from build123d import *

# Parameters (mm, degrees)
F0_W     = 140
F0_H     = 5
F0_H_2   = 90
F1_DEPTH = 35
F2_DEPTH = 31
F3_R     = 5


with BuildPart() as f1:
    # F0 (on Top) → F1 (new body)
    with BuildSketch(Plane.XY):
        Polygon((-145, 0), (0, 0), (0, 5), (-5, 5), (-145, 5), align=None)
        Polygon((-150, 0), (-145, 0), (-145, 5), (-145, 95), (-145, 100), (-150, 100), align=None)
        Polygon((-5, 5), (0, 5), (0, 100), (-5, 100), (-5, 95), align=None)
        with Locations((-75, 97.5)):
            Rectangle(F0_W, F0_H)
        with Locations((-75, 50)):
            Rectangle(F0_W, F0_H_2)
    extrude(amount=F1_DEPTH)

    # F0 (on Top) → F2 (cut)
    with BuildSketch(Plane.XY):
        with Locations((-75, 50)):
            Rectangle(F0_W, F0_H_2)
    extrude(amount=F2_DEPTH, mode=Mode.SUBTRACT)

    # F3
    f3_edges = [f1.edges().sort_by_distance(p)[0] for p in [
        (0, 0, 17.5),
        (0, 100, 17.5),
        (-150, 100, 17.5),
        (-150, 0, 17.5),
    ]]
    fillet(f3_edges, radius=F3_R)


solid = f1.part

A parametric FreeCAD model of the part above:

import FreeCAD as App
import Part
import Sketcher
Q = App.Units.Quantity


def edges_at(feature, points):
    """Names of the edges that pass closest to the given points."""
    edges = feature.Shape.Edges
    near = lambda p: min(range(len(edges)), key=lambda i: edges[i].distToShape(Part.Vertex(*p))[0])
    return sorted({f"Edge{near(p) + 1}" for p in points})

doc = App.newDocument("Part")
body = doc.addObject("PartDesign::Body", "Body")

# Sketch on XY plane
sketch1 = doc.addObject("Sketcher::SketchObject", "Sketch")
body.addObject(sketch1)
sketch1.AttachmentSupport = (doc.XY_Plane, [""])
sketch1.MapMode = "FlatFace"
sketch1.addGeometry([
    Part.LineSegment(App.Vector(0, 0, 0), App.Vector(0, 100, 0)),
    Part.LineSegment(App.Vector(0, 100, 0), App.Vector(-150, 100, 0)),
    Part.LineSegment(App.Vector(-150, 100, 0), App.Vector(-150, 0, 0)),
    Part.LineSegment(App.Vector(-150, 0, 0), App.Vector(0, 0, 0)),
], False)
sketch1.addConstraint([
    Sketcher.Constraint("Coincident", 0, 2, 1, 1),
    Sketcher.Constraint("Coincident", 1, 2, 2, 1),
    Sketcher.Constraint("Coincident", 2, 2, 3, 1),
    Sketcher.Constraint("Coincident", 3, 2, 0, 1),
    Sketcher.Constraint("Vertical", 0),
    Sketcher.Constraint("Horizontal", 1),
    Sketcher.Constraint("Vertical", 2),
    Sketcher.Constraint("Horizontal", 3),
    Sketcher.Constraint("Coincident", 3, 2, -1, 1),
    Sketcher.Constraint("DistanceX", 1, 2, 1, 1, Q("150 mm")),
    Sketcher.Constraint("DistanceY", 0, 1, 0, 2, Q("100 mm")),
])
pad1 = doc.addObject("PartDesign::Pad", "Pad")
body.addObject(pad1)
pad1.Profile = sketch1
pad1.Length = 35

# Sketch on XY plane
sketch2 = doc.addObject("Sketcher::SketchObject", "Sketch001")
body.addObject(sketch2)
sketch2.AttachmentSupport = (doc.XY_Plane, [""])
sketch2.MapMode = "FlatFace"
sketch2.addGeometry([
    Part.LineSegment(App.Vector(-145, 95, 0), App.Vector(-145, 5, 0)),
    Part.LineSegment(App.Vector(-145, 5, 0), App.Vector(-5, 5, 0)),
    Part.LineSegment(App.Vector(-5, 5, 0), App.Vector(-5, 95, 0)),
    Part.LineSegment(App.Vector(-5, 95, 0), App.Vector(-145, 95, 0)),
], False)
sketch2.addConstraint([
    Sketcher.Constraint("Coincident", 0, 2, 1, 1),
    Sketcher.Constraint("Coincident", 1, 2, 2, 1),
    Sketcher.Constraint("Coincident", 2, 2, 3, 1),
    Sketcher.Constraint("Coincident", 3, 2, 0, 1),
    Sketcher.Constraint("Vertical", 0),
    Sketcher.Constraint("Horizontal", 1),
    Sketcher.Constraint("Vertical", 2),
    Sketcher.Constraint("Horizontal", 3),
    Sketcher.Constraint("DistanceX", 1, 1, 1, 2, Q("140 mm")),
    Sketcher.Constraint("DistanceY", 0, 2, 0, 1, Q("90 mm")),
    Sketcher.Constraint("DistanceX", 0, 2, -1, 1, Q("145 mm")),
    Sketcher.Constraint("DistanceY", -1, 1, 0, 2, Q("5 mm")),
])
pocket1 = doc.addObject("PartDesign::Pocket", "Pocket")
body.addObject(pocket1)
pocket1.Profile = sketch2
pocket1.Length = 31
pocket1.Reversed = True
doc.recompute()

fillet = doc.addObject("PartDesign::Fillet", "Fillet")
body.addObject(fillet)
fillet.Base = (pocket1, edges_at(pocket1, [
    (0, 0, 17.5),
    (0, 100, 17.5),
    (-150, 100, 17.5),
    (-150, 0, 17.5),
]))
fillet.Radius = 5

doc.recompute()
